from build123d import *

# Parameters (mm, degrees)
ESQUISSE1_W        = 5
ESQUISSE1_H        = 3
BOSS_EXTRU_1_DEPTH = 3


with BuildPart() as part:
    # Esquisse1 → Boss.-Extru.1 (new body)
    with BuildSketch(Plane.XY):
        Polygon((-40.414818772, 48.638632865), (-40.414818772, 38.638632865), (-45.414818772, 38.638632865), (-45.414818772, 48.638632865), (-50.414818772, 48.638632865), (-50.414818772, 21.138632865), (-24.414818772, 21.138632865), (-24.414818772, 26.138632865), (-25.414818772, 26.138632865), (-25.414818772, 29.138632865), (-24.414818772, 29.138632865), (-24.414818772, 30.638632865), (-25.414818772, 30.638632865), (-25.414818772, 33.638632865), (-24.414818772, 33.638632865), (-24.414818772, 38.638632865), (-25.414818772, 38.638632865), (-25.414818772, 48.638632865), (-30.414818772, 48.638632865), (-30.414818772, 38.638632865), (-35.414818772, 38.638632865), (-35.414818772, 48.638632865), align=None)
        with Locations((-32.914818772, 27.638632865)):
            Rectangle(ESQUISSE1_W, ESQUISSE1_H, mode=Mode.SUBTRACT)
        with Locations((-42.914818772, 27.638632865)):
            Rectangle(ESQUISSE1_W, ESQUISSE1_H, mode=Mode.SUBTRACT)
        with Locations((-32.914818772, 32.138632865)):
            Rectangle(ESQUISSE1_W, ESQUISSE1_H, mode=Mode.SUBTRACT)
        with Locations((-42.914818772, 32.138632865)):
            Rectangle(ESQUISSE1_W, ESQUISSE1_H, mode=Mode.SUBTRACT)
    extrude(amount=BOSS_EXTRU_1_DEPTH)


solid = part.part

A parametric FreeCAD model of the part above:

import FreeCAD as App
import Part
import Sketcher

doc = App.newDocument("Part")
params = doc.addObject("Spreadsheet::Sheet", "Params")
for row, (alias, value) in enumerate([
    ("sketch1_width", "5 mm"),
    ("sketch1_width2", "26 mm"),
    ("sketch1_height", "10 mm"),
    ("sketch1_height2", "3 mm"),
    ("sketch1_height3", "27.5 mm"),
    ("pad1_length", "3 mm"),
], start=1):
    params.set(f"A{row}", alias)
    params.set(f"B{row}", "=" + value)
    params.setAlias(f"B{row}", alias)

body = doc.addObject("PartDesign::Body", "Body")

sketch1 = body.newObject("Sketcher::SketchObject", "Sketch")
sketch1.AttachmentSupport = (doc.getObject("XY_Plane"), [""])
sketch1.MapMode = "FlatFace"
sketch1.addGeometry(Part.LineSegment(App.Vector(-40.4, 48.6, 0), App.Vector(-40.4, 38.6, 0)), False)
sketch1.addGeometry(Part.LineSegment(App.Vector(-40.4, 38.6, 0), App.Vector(-45.4, 38.6, 0)), False)
sketch1.addGeometry(Part.LineSegment(App.Vector(-45.4, 38.6, 0), App.Vector(-45.4, 48.6, 0)), False)
sketch1.addGeometry(Part.LineSegment(App.Vector(-45.4, 48.6, 0), App.Vector(-50.4, 48.6, 0)), False)
sketch1.addGeometry(Part.LineSegment(App.Vector(-50.4, 48.6, 0), App.Vector(-50.4, 21.1, 0)), False)
sketch1.addGeometry(Part.LineSegment(App.Vector(-50.4, 21.1, 0), App.Vector(-24.4, 21.1, 0)), False)
sketch1.addGeometry(Part.LineSegment(App.Vector(-24.4, 21.1, 0), App.Vector(-24.4, 26.1, 0)), False)
sketch1.addGeometry(Part.LineSegment(App.Vector(-24.4, 26.1, 0), App.Vector(-25.4, 26.1, 0)), False)
sketch1.addGeometry(Part.LineSegment(App.Vector(-25.4, 26.1, 0), App.Vector(-25.4, 29.1, 0)), False)
sketch1.addGeometry(Part.LineSegment(App.Vector(-25.4, 29.1, 0), App.Vector(-24.4, 29.1, 0)), False)
sketch1.addGeometry(Part.LineSegment(App.Vector(-24.4, 29.1, 0), App.Vector(-24.4, 30.6, 0)), False)
sketch1.addGeometry(Part.LineSegment(App.Vector(-24.4, 30.6, 0), App.Vector(-25.4, 30.6, 0)), False)
sketch1.addGeometry(Part.LineSegment(App.Vector(-25.4, 30.6, 0), App.Vector(-25.4, 33.6, 0)), False)
sketch1.addGeometry(Part.LineSegment(App.Vector(-25.4, 33.6, 0), App.Vector(-24.4, 33.6, 0)), False)
sketch1.addGeometry(Part.LineSegment(App.Vector(-24.4, 33.6, 0), App.Vector(-24.4, 38.6, 0)), False)
sketch1.addGeometry(Part.LineSegment(App.Vector(-24.4, 38.6, 0), App.Vector(-25.4, 38.6, 0)), False)
sketch1.addGeometry(Part.LineSegment(App.Vector(-25.4, 38.6, 0), App.Vector(-25.4, 48.6, 0)), False)
sketch1.addGeometry(Part.LineSegment(App.Vector(-25.4, 48.6, 0), App.Vector(-30.4, 48.6, 0)), False)
sketch1.addGeometry(Part.LineSegment(App.Vector(-30.4, 48.6, 0), App.Vector(-30.4, 38.6, 0)), False)
sketch1.addGeometry(Part.LineSegment(App.Vector(-30.4, 38.6, 0), App.Vector(-35.4, 38.6, 0)), False)
sketch1.addGeometry(Part.LineSegment(App.Vector(-35.4, 38.6, 0), App.Vector(-35.4, 48.6, 0)), False)
sketch1.addGeometry(Part.LineSegment(App.Vector(-35.4, 48.6, 0), App.Vector(-40.4, 48.6, 0)), False)
sketch1.addGeometry(Part.LineSegment(App.Vector(-40.4, 26.1, 0), App.Vector(-45.4, 26.1, 0)), False)
sketch1.addGeometry(Part.LineSegment(App.Vector(-45.4, 26.1, 0), App.Vector(-45.4, 29.1, 0)), False)
sketch1.addGeometry(Part.LineSegment(App.Vector(-45.4, 29.1, 0), App.Vector(-40.4, 29.1, 0)), False)
sketch1.addGeometry(Part.LineSegment(App.Vector(-40.4, 29.1, 0), App.Vector(-40.4, 26.1, 0)), False)
sketch1.addGeometry(Part.LineSegment(App.Vector(-30.4, 26.1, 0), App.Vector(-35.4, 26.1, 0)), False)
sketch1.addGeometry(Part.LineSegment(App.Vector(-35.4, 26.1, 0), App.Vector(-35.4, 29.1, 0)), False)
sketch1.addGeometry(Part.LineSegment(App.Vector(-35.4, 29.1, 0), App.Vector(-30.4, 29.1, 0)), False)
sketch1.addGeometry(Part.LineSegment(App.Vector(-30.4, 29.1, 0), App.Vector(-30.4, 26.1, 0)), False)
sketch1.addGeometry(Part.LineSegment(App.Vector(-40.4, 30.6, 0), App.Vector(-45.4, 30.6, 0)), False)
sketch1.addGeometry(Part.LineSegment(App.Vector(-45.4, 30.6, 0), App.Vector(-45.4, 33.6, 0)), False)
sketch1.addGeometry(Part.LineSegment(App.Vector(-45.4, 33.6, 0), App.Vector(-40.4, 33.6, 0)), False)
sketch1.addGeometry(Part.LineSegment(App.Vector(-40.4, 33.6, 0), App.Vector(-40.4, 30.6, 0)), False)
sketch1.addGeometry(Part.LineSegment(App.Vector(-30.4, 30.6, 0), App.Vector(-35.4, 30.6, 0)), False)
sketch1.addGeometry(Part.LineSegment(App.Vector(-35.4, 30.6, 0), App.Vector(-35.4, 33.6, 0)), False)
sketch1.addGeometry(Part.LineSegment(App.Vector(-35.4, 33.6, 0), App.Vector(-30.4, 33.6, 0)), False)
sketch1.addGeometry(Part.LineSegment(App.Vector(-30.4, 33.6, 0), App.Vector(-30.4, 30.6, 0)), False)
sketch1.addConstraint(Sketcher.Constraint("Coincident", 0, 2, 1, 1))
sketch1.addConstraint(Sketcher.Constraint("Coincident", 1, 2, 2, 1))
sketch1.addConstraint(Sketcher.Constraint("Coincident", 2, 2, 3, 1))
sketch1.addConstraint(Sketcher.Constraint("Coincident", 3, 2, 4, 1))
sketch1.addConstraint(Sketcher.Constraint("Coincident", 4, 2, 5, 1))
sketch1.addConstraint(Sketcher.Constraint("Coincident", 5, 2, 6, 1))
sketch1.addConstraint(Sketcher.Constraint("Coincident", 6, 2, 7, 1))
sketch1.addConstraint(Sketcher.Constraint("Coincident", 7, 2, 8, 1))
sketch1.addConstraint(Sketcher.Constraint("Coincident", 8, 2, 9, 1))
sketch1.addConstraint(Sketcher.Constraint("Coincident", 9, 2, 10, 1))
sketch1.addConstraint(Sketcher.Constraint("Coincident", 10, 2, 11, 1))
sketch1.addConstraint(Sketcher.Constraint("Coincident", 11, 2, 12, 1))
sketch1.addConstraint(Sketcher.Constraint("Coincident", 12, 2, 13, 1))
sketch1.addConstraint(Sketcher.Constraint("Coincident", 13, 2, 14, 1))
sketch1.addConstraint(Sketcher.Constraint("Coincident", 14, 2, 15, 1))
sketch1.addConstraint(Sketcher.Constraint("Coincident", 15, 2, 16, 1))
sketch1.addConstraint(Sketcher.Constraint("Coincident", 16, 2, 17, 1))
sketch1.addConstraint(Sketcher.Constraint("Coincident", 17, 2, 18, 1))
sketch1.addConstraint(Sketcher.Constraint("Coincident", 18, 2, 19, 1))
sketch1.addConstraint(Sketcher.Constraint("Coincident", 19, 2, 20, 1))
sketch1.addConstraint(Sketcher.Constraint("Coincident", 20, 2, 21, 1))
sketch1.addConstraint(Sketcher.Constraint("Coincident", 21, 2, 0, 1))
sketch1.addConstraint(Sketcher.Constraint("Coincident", 22, 2, 23, 1))
sketch1.addConstraint(Sketcher.Constraint("Coincident", 23, 2, 24, 1))
sketch1.addConstraint(Sketcher.Constraint("Coincident", 24, 2, 25, 1))
sketch1.addConstraint(Sketcher.Constraint("Coincident", 25, 2, 22, 1))
sketch1.addConstraint(Sketcher.Constraint("Coincident", 26, 2, 27, 1))
sketch1.addConstraint(Sketcher.Constraint("Coincident", 27, 2, 28, 1))
sketch1.addConstraint(Sketcher.Constraint("Coincident", 28, 2, 29, 1))
sketch1.addConstraint(Sketcher.Constraint("Coincident", 29, 2, 26, 1))
sketch1.addConstraint(Sketcher.Constraint("Coincident", 30, 2, 31, 1))
sketch1.addConstraint(Sketcher.Constraint("Coincident", 31, 2, 32, 1))
sketch1.addConstraint(Sketcher.Constraint("Coincident", 32, 2, 33, 1))
sketch1.addConstraint(Sketcher.Constraint("Coincident", 33, 2, 30, 1))
sketch1.addConstraint(Sketcher.Constraint("Coincident", 34, 2, 35, 1))
sketch1.addConstraint(Sketcher.Constraint("Coincident", 35, 2, 36, 1))
sketch1.addConstraint(Sketcher.Constraint("Coincident", 36, 2, 37, 1))
sketch1.addConstraint(Sketcher.Constraint("Coincident", 37, 2, 34, 1))
sketch1.addConstraint(Sketcher.Constraint("Vertical", 0))
sketch1.addConstraint(Sketcher.Constraint("Horizontal", 1))
sketch1.addConstraint(Sketcher.Constraint("Vertical", 2))
sketch1.addConstraint(Sketcher.Constraint("Horizontal", 3))
sketch1.addConstraint(Sketcher.Constraint("Vertical", 4))
sketch1.addConstraint(Sketcher.Constraint("Horizontal", 5))
sketch1.addConstraint(Sketcher.Constraint("Vertical", 6))
sketch1.addConstraint(Sketcher.Constraint("Horizontal", 7))
sketch1.addConstraint(Sketcher.Constraint("Vertical", 8))
sketch1.addConstraint(Sketcher.Constraint("Horizontal", 9))
sketch1.addConstraint(Sketcher.Constraint("Vertical", 10))
sketch1.addConstraint(Sketcher.Constraint("Horizontal", 11))
sketch1.addConstraint(Sketcher.Constraint("Vertical", 12))
sketch1.addConstraint(Sketcher.Constraint("Horizontal", 13))
sketch1.addConstraint(Sketcher.Constraint("Vertical", 14))
sketch1.addConstraint(Sketcher.Constraint("Horizontal", 15))
sketch1.addConstraint(Sketcher.Constraint("Vertical", 16))
sketch1.addConstraint(Sketcher.Constraint("Horizontal", 17))
sketch1.addConstraint(Sketcher.Constraint("Vertical", 18))
sketch1.addConstraint(Sketcher.Constraint("Horizontal", 19))
sketch1.addConstraint(Sketcher.Constraint("Vertical", 20))
sketch1.addConstraint(Sketcher.Constraint("Horizontal", 21))
sketch1.addConstraint(Sketcher.Constraint("Horizontal", 22))
sketch1.addConstraint(Sketcher.Constraint("Vertical", 23))
sketch1.addConstraint(Sketcher.Constraint("Horizontal", 24))
sketch1.addConstraint(Sketcher.Constraint("Vertical", 25))
sketch1.addConstraint(Sketcher.Constraint("Horizontal", 26))
sketch1.addConstraint(Sketcher.Constraint("Vertical", 27))
sketch1.addConstraint(Sketcher.Constraint("Horizontal", 28))
sketch1.addConstraint(Sketcher.Constraint("Vertical", 29))
sketch1.addConstraint(Sketcher.Constraint("Horizontal", 30))
sketch1.addConstraint(Sketcher.Constraint("Vertical", 31))
sketch1.addConstraint(Sketcher.Constraint("Horizontal", 32))
sketch1.addConstraint(Sketcher.Constraint("Vertical", 33))
sketch1.addConstraint(Sketcher.Constraint("Horizontal", 34))
sketch1.addConstraint(Sketcher.Constraint("Vertical", 35))
sketch1.addConstraint(Sketcher.Constraint("Horizontal", 36))
sketch1.addConstraint(Sketcher.Constraint("Vertical", 37))
sketch1.addConstraint(Sketcher.Constraint("Horizontal", 1, 2, 14, 2))
sketch1.addConstraint(Sketcher.Constraint("Horizontal", 3, 2, 16, 2))
sketch1.addConstraint(Sketcher.Constraint("Horizontal", 15, 2, 18, 2))
sketch1.addConstraint(Sketcher.Constraint("Horizontal", 17, 2, 20, 2))
sketch1.addConstraint(Sketcher.Constraint("Horizontal", 7, 2, 22, 2))
sketch1.addConstraint(Sketcher.Constraint("Horizontal", 9, 2, 23, 2))
sketch1.addConstraint(Sketcher.Constraint("Horizontal", 25, 2, 26, 2))
sketch1.addConstraint(Sketcher.Constraint("Horizontal", 24, 2, 27, 2))
sketch1.addConstraint(Sketcher.Constraint("Horizontal", 11, 2, 30, 2))
sketch1.addConstraint(Sketcher.Constraint("Horizontal", 13, 2, 31, 2))
sketch1.addConstraint(Sketcher.Constraint("Horizontal", 33, 2, 34, 2))
sketch1.addConstraint(Sketcher.Constraint("Horizontal", 32, 2, 35, 2))
sketch1.addConstraint(Sketcher.Constraint("Vertical", 6, 2, 9, 2))
sketch1.addConstraint(Sketcher.Constraint("Vertical", 8, 2, 11, 2))
sketch1.addConstraint(Sketcher.Constraint("Vertical", 10, 2, 13, 2))
sketch1.addConstraint(Sketcher.Constraint("Vertical", 12, 2, 15, 2))
sketch1.addConstraint(Sketcher.Constraint("Vertical", 2, 2, 22, 2))
sketch1.addConstraint(Sketcher.Constraint("Vertical", 21, 2, 24, 2))
sketch1.addConstraint(Sketcher.Constraint("Vertical", 20, 2, 26, 2))
sketch1.addConstraint(Sketcher.Constraint("Vertical", 18, 2, 28, 2))
sketch1.addConstraint(Sketcher.Constraint("Vertical", 23, 2, 30, 2))
sketch1.addConstraint(Sketcher.Constraint("Vertical", 25, 2, 32, 2))
sketch1.addConstraint(Sketcher.Constraint("Vertical", 27, 2, 34, 2))
sketch1.addConstraint(Sketcher.Constraint("Vertical", 29, 2, 36, 2))
sketch1.addConstraint(Sketcher.Constraint("Equal", 1, 3))
sketch1.addConstraint(Sketcher.Constraint("Equal", 3, 17))
sketch1.addConstraint(Sketcher.Constraint("Equal", 17, 19))
sketch1.addConstraint(Sketcher.Constraint("Equal", 19, 21))
sketch1.addConstraint(Sketcher.Constraint("Equal", 36, 6))
sketch1.addConstraint(Sketcher.Constraint("Equal", 8, 12))
sketch1.addConstraint(Sketcher.Constraint("Equal", 6, 14))
sketch1.addConstraint(Sketcher.Constraint("DistanceX", 1, 2, 1, 1, 5.0))
sketch1.addConstraint(Sketcher.Constraint("DistanceX", 5, 1, 5, 2, 26.0))
sketch1.addConstraint(Sketcher.Constraint("DistanceY", 0, 2, 0, 1, 10.0))
sketch1.addConstraint(Sketcher.Constraint("DistanceY", 8, 1, 8, 2, 3.0))
sketch1.addConstraint(Sketcher.Constraint("DistanceY", 4, 2, 4, 1, 27.5))
sketch1.addConstraint(Sketcher.Constraint("DistanceX", 0, 2, -1, 1, 40.414819))
sketch1.addConstraint(Sketcher.Constraint("DistanceY", -1, 1, 0, 2, 38.638633))
sketch1.setExpression("Constraints[107]", "Params.sketch1_width")
sketch1.setExpression("Constraints[108]", "Params.sketch1_width2")
sketch1.setExpression("Constraints[109]", "Params.sketch1_height")
sketch1.setExpression("Constraints[110]", "Params.sketch1_height2")
sketch1.setExpression("Constraints[111]", "Params.sketch1_height3")
pad1 = body.newObject("PartDesign::Pad", "Pad")
pad1.Profile = sketch1
pad1.setExpression("Length", "Params.pad1_length")

doc.recompute()
